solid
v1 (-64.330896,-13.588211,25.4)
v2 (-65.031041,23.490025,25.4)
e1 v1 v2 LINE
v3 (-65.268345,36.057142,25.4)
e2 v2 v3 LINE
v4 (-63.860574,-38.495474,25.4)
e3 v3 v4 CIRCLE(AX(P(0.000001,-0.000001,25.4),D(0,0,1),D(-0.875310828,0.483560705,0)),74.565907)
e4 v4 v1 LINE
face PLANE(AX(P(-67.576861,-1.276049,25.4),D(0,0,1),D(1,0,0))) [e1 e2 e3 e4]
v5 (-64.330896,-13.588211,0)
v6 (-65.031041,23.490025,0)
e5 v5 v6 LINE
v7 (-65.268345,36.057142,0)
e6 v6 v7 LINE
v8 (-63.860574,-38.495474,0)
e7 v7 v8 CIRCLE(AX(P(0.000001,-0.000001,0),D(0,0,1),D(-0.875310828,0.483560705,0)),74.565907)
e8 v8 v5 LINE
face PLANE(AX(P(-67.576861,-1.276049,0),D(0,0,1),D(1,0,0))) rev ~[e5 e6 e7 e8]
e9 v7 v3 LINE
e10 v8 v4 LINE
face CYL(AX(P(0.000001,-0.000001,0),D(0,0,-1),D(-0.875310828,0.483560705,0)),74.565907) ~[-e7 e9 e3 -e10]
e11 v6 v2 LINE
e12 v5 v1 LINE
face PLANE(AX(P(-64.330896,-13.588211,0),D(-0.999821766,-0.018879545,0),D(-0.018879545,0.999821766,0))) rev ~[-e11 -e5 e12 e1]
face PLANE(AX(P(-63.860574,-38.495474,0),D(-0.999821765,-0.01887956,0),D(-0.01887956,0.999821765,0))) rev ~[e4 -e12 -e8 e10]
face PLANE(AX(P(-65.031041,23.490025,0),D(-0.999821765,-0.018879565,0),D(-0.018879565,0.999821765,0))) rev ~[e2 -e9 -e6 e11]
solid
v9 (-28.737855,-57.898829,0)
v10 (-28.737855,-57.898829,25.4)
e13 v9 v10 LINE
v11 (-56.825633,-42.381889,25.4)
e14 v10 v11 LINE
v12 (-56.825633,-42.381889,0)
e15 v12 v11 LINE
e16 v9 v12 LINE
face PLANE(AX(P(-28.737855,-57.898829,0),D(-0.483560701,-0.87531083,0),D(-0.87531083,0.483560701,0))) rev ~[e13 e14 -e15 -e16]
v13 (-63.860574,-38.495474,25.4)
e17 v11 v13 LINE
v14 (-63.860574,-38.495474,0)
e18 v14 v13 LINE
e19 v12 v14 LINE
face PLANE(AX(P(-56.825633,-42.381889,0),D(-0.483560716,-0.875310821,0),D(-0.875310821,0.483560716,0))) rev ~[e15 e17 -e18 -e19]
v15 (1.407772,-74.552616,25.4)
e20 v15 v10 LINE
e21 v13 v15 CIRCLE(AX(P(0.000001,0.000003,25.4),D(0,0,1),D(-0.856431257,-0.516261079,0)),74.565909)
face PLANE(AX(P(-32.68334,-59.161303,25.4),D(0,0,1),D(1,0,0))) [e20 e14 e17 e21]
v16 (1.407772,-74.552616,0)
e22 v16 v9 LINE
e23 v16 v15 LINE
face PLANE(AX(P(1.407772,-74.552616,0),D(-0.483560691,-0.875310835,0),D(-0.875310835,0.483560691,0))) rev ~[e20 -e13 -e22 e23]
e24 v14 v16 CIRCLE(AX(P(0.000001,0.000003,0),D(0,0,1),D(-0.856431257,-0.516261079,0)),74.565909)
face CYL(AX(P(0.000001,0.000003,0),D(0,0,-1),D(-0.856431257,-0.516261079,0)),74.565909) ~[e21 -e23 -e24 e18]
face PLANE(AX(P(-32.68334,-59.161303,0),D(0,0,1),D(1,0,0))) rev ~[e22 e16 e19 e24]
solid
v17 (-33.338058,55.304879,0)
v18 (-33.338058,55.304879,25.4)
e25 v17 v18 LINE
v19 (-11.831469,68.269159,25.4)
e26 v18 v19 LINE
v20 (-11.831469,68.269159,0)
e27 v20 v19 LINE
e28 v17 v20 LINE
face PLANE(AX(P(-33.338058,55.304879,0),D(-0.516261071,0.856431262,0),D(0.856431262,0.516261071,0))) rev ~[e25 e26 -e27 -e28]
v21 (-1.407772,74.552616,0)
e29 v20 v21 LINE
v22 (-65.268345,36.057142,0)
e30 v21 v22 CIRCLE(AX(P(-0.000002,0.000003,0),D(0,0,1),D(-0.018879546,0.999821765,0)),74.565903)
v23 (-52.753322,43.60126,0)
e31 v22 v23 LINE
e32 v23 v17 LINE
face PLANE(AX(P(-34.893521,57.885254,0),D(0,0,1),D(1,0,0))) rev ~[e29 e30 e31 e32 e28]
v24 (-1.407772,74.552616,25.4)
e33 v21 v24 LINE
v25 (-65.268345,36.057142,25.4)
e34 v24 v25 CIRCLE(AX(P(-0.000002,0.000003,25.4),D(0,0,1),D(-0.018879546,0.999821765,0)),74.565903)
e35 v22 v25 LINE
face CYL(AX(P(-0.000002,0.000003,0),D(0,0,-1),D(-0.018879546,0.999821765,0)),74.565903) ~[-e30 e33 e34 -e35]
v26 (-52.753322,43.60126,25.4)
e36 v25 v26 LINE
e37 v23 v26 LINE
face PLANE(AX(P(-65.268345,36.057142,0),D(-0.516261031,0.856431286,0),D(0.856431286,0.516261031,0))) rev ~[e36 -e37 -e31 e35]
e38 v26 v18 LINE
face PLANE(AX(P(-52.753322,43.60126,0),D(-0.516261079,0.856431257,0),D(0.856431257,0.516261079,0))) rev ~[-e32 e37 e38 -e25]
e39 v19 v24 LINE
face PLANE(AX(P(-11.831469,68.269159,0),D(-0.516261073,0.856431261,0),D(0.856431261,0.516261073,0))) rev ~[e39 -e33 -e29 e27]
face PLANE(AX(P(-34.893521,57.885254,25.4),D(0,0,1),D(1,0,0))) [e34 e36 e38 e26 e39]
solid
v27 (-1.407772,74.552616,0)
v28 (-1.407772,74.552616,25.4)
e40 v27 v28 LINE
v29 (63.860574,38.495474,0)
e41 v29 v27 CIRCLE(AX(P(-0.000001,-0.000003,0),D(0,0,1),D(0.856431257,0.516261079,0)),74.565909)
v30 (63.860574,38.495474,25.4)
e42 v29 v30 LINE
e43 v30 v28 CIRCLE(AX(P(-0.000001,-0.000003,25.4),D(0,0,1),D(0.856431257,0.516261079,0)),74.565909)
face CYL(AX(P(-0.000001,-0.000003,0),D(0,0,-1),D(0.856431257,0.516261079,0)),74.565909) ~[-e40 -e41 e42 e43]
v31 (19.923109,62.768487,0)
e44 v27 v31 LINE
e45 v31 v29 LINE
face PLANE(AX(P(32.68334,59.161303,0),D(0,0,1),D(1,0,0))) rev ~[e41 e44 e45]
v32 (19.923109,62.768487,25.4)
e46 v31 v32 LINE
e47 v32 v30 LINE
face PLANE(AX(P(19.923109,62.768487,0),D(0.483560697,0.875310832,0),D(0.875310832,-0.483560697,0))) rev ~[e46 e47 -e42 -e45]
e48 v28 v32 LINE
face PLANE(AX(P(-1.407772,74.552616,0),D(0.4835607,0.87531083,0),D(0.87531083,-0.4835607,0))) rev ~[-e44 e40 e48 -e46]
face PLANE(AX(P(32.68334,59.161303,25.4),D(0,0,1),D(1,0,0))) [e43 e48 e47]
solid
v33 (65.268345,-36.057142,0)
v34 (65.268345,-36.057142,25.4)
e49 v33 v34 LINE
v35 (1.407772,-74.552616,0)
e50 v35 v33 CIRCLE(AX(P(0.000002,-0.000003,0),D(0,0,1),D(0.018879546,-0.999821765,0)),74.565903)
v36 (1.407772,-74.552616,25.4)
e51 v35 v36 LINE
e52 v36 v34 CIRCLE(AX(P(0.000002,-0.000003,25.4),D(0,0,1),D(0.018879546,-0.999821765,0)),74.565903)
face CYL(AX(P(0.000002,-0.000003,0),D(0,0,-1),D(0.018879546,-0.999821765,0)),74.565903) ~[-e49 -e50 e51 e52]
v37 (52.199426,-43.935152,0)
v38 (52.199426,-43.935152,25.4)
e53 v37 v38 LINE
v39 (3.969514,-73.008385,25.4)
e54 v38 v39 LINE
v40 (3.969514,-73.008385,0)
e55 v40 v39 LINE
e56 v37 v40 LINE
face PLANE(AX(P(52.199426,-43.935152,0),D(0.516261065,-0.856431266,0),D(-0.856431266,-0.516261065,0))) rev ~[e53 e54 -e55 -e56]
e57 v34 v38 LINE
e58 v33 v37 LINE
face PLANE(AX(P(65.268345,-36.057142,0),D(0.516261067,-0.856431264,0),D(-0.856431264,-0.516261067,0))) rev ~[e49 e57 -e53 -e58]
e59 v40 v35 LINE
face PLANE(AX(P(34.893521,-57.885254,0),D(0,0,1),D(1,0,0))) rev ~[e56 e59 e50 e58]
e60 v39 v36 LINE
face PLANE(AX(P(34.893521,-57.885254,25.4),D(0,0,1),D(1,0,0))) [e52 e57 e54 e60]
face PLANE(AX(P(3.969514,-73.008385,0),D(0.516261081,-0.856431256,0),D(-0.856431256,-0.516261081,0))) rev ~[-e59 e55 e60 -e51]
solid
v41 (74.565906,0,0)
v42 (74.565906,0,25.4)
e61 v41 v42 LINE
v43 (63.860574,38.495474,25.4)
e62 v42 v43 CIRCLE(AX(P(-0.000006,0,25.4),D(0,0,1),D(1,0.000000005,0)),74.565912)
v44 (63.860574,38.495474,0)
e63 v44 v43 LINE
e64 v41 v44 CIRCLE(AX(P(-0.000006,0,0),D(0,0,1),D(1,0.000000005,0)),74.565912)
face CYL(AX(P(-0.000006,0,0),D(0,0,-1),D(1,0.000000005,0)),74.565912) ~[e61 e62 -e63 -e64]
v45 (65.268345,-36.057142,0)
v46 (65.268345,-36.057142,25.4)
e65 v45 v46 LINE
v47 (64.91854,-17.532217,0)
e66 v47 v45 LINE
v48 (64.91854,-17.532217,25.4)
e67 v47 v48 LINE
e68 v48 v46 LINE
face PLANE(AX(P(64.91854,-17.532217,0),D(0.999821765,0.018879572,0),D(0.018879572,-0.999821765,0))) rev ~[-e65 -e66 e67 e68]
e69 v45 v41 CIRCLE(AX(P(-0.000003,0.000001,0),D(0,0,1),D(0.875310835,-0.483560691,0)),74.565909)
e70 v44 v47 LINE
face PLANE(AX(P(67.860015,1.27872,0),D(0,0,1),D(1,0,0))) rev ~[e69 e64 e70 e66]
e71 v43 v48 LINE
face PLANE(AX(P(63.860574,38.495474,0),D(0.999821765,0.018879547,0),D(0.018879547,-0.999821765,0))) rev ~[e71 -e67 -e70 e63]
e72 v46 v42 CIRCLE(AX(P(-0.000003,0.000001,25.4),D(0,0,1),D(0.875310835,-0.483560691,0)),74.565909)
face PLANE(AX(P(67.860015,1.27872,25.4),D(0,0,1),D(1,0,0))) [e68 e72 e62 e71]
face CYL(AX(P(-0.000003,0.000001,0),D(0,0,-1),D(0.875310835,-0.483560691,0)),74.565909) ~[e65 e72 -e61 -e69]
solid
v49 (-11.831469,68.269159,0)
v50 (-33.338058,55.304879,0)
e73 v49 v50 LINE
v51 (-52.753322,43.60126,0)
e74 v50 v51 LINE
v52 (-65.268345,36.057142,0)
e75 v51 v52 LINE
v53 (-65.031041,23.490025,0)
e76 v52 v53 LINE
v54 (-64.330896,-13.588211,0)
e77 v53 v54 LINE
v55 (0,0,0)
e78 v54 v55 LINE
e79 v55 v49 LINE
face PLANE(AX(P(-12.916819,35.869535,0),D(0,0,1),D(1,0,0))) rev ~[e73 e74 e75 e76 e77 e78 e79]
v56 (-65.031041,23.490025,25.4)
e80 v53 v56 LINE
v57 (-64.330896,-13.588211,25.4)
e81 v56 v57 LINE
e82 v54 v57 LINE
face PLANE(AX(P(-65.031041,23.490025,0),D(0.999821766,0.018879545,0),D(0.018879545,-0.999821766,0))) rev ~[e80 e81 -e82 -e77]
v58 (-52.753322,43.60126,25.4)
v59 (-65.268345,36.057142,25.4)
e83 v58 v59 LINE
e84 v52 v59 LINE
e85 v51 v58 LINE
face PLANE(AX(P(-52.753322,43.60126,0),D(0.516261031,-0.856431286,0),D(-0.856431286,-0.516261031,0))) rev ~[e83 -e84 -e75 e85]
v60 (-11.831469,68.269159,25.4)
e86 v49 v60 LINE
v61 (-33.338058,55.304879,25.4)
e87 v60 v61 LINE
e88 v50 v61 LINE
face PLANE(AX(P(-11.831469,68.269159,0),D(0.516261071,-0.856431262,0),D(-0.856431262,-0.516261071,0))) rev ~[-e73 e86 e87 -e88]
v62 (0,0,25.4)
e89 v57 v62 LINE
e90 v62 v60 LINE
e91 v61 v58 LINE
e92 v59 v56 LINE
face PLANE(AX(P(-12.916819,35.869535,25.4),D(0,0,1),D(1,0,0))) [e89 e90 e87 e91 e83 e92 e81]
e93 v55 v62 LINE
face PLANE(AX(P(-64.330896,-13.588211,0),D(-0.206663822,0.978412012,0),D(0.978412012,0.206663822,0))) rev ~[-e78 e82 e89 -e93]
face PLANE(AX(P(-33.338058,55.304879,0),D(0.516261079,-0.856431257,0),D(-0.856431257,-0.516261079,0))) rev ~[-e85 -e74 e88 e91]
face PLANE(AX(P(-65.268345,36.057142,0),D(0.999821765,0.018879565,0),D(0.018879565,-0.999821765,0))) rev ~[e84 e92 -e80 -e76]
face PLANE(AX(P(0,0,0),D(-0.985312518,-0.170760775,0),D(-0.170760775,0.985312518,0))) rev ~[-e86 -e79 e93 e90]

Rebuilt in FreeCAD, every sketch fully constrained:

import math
import FreeCAD as App
import Part
import Sketcher

V = App.Vector
Q = App.Units.Quantity


def add_polygon(sketch, points):
    """Adds a closed chain of lines whose ends are joined by coincident constraints."""
    first, n = sketch.GeometryCount, len(points)
    for a, b in zip(points, points[1:] + points[:1]):
        sketch.addGeometry(Part.LineSegment(App.Vector(*a, 0), App.Vector(*b, 0)), False)
    for i in range(n):
        sketch.addConstraint(Sketcher.Constraint("Coincident", first + i, 2, first + (i + 1) % n, 1))

doc = App.newDocument("Part")
params = doc.addObject("Spreadsheet::Sheet", "Params")
for row, (alias, value) in enumerate([
    ("pad1_length", "1 in"),
    ("pad2_length", "1 in"),
], start=1):
    params.set(f"A{row}", alias)
    params.set(f"B{row}", "=" + value)
    params.setAlias(f"B{row}", alias)

body = doc.addObject("PartDesign::Body", "Body")
body.AllowCompound = True

sketch1 = body.newObject("Sketcher::SketchObject", "Sketch")
sketch1.AttachmentSupport = (doc.getObject("XY_Plane"), [""])
sketch1.MapMode = "FlatFace"
sketch1.addGeometry([
    Part.ArcOfCircle(Part.Circle(V(-0.000003, 0.000001, 0), V(0, 0, 1), 74.565909), math.radians(-28.918216), math.radians(-0.000001)),
    Part.ArcOfCircle(Part.Circle(V(-0.000006, 0, 0), V(0, 0, 1), 74.565912), math.radians(0), math.radians(31.081781)),
    Part.LineSegment(V(63.860574, 38.495474, 0), V(64.91854, -17.532217, 0)),
    Part.LineSegment(V(64.91854, -17.532217, 0), V(65.268345, -36.057142, 0)),
    Part.LineSegment(V(19.923109, 62.768487, 0), V(63.860574, 38.495474, 0)),
    Part.ArcOfCircle(Part.Circle(V(-0.000001, -0.000003, 0), V(0, 0, 1), 74.565909), math.radians(31.081785), math.radians(91.081783)),
    Part.LineSegment(V(-1.407772, 74.552616, 0), V(19.923109, 62.768487, 0)),
    Part.LineSegment(V(-11.831469, 68.269159, 0), V(-1.407772, 74.552616, 0)),
    Part.ArcOfCircle(Part.Circle(V(-0.000002, 0.000003, 0), V(0, 0, 1), 74.565903), math.radians(91.081783), math.radians(151.081785)),
    Part.LineSegment(V(-65.268345, 36.057142, 0), V(-52.753322, 43.60126, 0)),
    Part.LineSegment(V(-52.753322, 43.60126, 0), V(-33.338058, 55.304879, 0)),
    Part.LineSegment(V(-33.338058, 55.304879, 0), V(-11.831469, 68.269159, 0)),
    Part.ArcOfCircle(Part.Circle(V(0.000001, 0.000003, 0), V(0, 0, 1), 74.565909), math.radians(-148.918215), math.radians(-88.918217)),
    Part.LineSegment(V(1.407772, -74.552616, 0), V(-28.737855, -57.898829, 0)),
    Part.LineSegment(V(-28.737855, -57.898829, 0), V(-56.825633, -42.381889, 0)),
    Part.LineSegment(V(-56.825633, -42.381889, 0), V(-63.860574, -38.495474, 0)),
    Part.ArcOfCircle(Part.Circle(V(0.000002, -0.000003, 0), V(0, 0, 1), 74.565903), math.radians(-88.918217), math.radians(-28.918215)),
    Part.LineSegment(V(65.268345, -36.057142, 0), V(52.199426, -43.935152, 0)),
    Part.LineSegment(V(52.199426, -43.935152, 0), V(3.969514, -73.008385, 0)),
    Part.LineSegment(V(3.969514, -73.008385, 0), V(1.407772, -74.552616, 0)),
    Part.LineSegment(V(-65.031041, 23.490025, 0), V(-65.268345, 36.057142, 0)),
    Part.ArcOfCircle(Part.Circle(V(0.000001, -0.000001, 0), V(0, 0, 1), 74.565907), math.radians(151.081783), math.radians(211.081783)),
    Part.LineSegment(V(-63.860574, -38.495474, 0), V(-64.330896, -13.588211, 0)),
    Part.LineSegment(V(-64.330896, -13.588211, 0), V(-65.031041, 23.490025, 0)),
], False)
sketch1.addConstraint([
    Sketcher.Constraint("Coincident", 0, 2, 1, 1),
    Sketcher.Constraint("Coincident", 1, 2, 2, 1),
    Sketcher.Constraint("Coincident", 2, 2, 3, 1),
    Sketcher.Constraint("Coincident", 3, 2, 0, 1),
    Sketcher.Constraint("Coincident", 4, 2, 5, 1),
    Sketcher.Constraint("Coincident", 5, 2, 6, 1),
    Sketcher.Constraint("Coincident", 6, 2, 4, 1),
    Sketcher.Constraint("Coincident", 7, 2, 8, 1),
    Sketcher.Constraint("Coincident", 8, 2, 9, 1),
    Sketcher.Constraint("Coincident", 9, 2, 10, 1),
    Sketcher.Constraint("Coincident", 10, 2, 11, 1),
    Sketcher.Constraint("Coincident", 11, 2, 7, 1),
    Sketcher.Constraint("Coincident", 12, 2, 13, 1),
    Sketcher.Constraint("Coincident", 13, 2, 14, 1),
    Sketcher.Constraint("Coincident", 14, 2, 15, 1),
    Sketcher.Constraint("Coincident", 15, 2, 12, 1),
    Sketcher.Constraint("Coincident", 16, 2, 17, 1),
    Sketcher.Constraint("Coincident", 17, 2, 18, 1),
    Sketcher.Constraint("Coincident", 18, 2, 19, 1),
    Sketcher.Constraint("Coincident", 19, 2, 16, 1),
    Sketcher.Constraint("Coincident", 20, 2, 21, 1),
    Sketcher.Constraint("Coincident", 21, 2, 22, 1),
    Sketcher.Constraint("Coincident", 22, 2, 23, 1),
    Sketcher.Constraint("Coincident", 23, 2, 20, 1),
    Sketcher.Constraint("Coincident", 0, 3, -1, 1),
    Sketcher.Constraint("Coincident", 1, 3, -1, 1),
    Sketcher.Constraint("Coincident", 5, 3, -1, 1),
    Sketcher.Constraint("Coincident", 8, 3, -1, 1),
    Sketcher.Constraint("Coincident", 12, 3, -1, 1),
    Sketcher.Constraint("Coincident", 16, 3, -1, 1),
    Sketcher.Constraint("Coincident", 21, 3, -1, 1),
    Sketcher.Constraint("Coincident", 4, 2, 1, 2),
    Sketcher.Constraint("Coincident", 7, 2, 5, 2),
    Sketcher.Constraint("Coincident", 16, 2, 3, 2),
    Sketcher.Constraint("Coincident", 19, 2, 12, 2),
    Sketcher.Constraint("Coincident", 20, 2, 8, 2),
    Sketcher.Constraint("PointOnObject", 0, 2, -1),
    Sketcher.Constraint("Radius", 0, 74.565909),
    Sketcher.Constraint("DistanceY", 12, 3, 6, 2, Q("2.4712002 in")),
    Sketcher.Constraint("DistanceY", 9, 2, 11, 2, 24.667899),
    Sketcher.Constraint("Distance", 2, 56.037679),
    Sketcher.Constraint("Distance", 9, 14.612991),
    Sketcher.Constraint("Distance", 10, 22.669962),
    Sketcher.Constraint("Distance", 11, 25.111868),
    Sketcher.Constraint("Distance", 13, 34.439911),
    Sketcher.Constraint("Distance", 14, 32.088919),
    Sketcher.Constraint("Distance", 17, 15.259741),
    Sketcher.Constraint("DistanceX", -1, 1, 2, 2, 64.91854),
    Sketcher.Constraint("DistanceX", 5, 2, -1, 1, 1.407772),
    Sketcher.Constraint("DistanceX", -1, 1, 6, 2, 19.923109),
    Sketcher.Constraint("DistanceY", -1, 1, 8, 2, 36.057142),
    Sketcher.Constraint("DistanceX", 9, 2, -1, 1, 52.753322),
    Sketcher.Constraint("DistanceY", -1, 1, 10, 2, 55.304879),
    Sketcher.Constraint("DistanceX", -1, 1, 12, 2, 1.407772),
    Sketcher.Constraint("DistanceY", 13, 2, -1, 1, 57.898829),
    Sketcher.Constraint("DistanceY", 14, 2, -1, 1, 42.381889),
    Sketcher.Constraint("DistanceY", 16, 2, -1, 1, 36.057142),
    Sketcher.Constraint("DistanceY", 22, 2, -1, 1, 13.588211),
    Sketcher.Constraint("DistanceX", 23, 2, -1, 1, 65.031041),
    Sketcher.Constraint("DistanceX", 1, 2, 0, 2, 10.705332),
    Sketcher.Constraint("DistanceX", 15, 2, 14, 2, 7.034941),
    Sketcher.Constraint("DistanceX", 17, 2, 16, 2, 13.068919),
    Sketcher.Constraint("DistanceY", 12, 2, 18, 2, 1.544231),
    Sketcher.Constraint("DistanceX", 13, 2, 18, 2, 32.707369),
    Sketcher.Constraint("DistanceX", 21, 2, 14, 2, 7.034941),
    Sketcher.Constraint("DistanceX", 22, 2, 15, 2, 0.470322),
    Sketcher.Constraint("Distance", 20, 12.569357),
])
pad1 = body.newObject("PartDesign::Pad", "Pad")
pad1.Profile = sketch1
pad1.setExpression("Length", "Params.pad1_length")
body2 = doc.addObject("PartDesign::Body", "Body001")

sketch2 = body2.newObject("Sketcher::SketchObject", "Sketch001")
sketch2.AttachmentSupport = (doc.getObject("XY_Plane001"), [""])
sketch2.MapMode = "FlatFace"
add_polygon(sketch2, [(0, 0), (-11.831469, 68.269159), (-33.338058, 55.304879), (-52.753322, 43.60126), (-65.268345, 36.057142), (-65.031041, 23.490025), (-64.330896, -13.588211)])
sketch2.addConstraint([
    Sketcher.Constraint("Coincident", 6, 2, -1, 1),
    Sketcher.Constraint("DistanceY", 2, 2, 0, 2, 24.667899),
    Sketcher.Constraint("Distance", 1, 25.111868),
    Sketcher.Constraint("Distance", 2, 22.669962),
    Sketcher.Constraint("Distance", 3, 14.612991),
    Sketcher.Constraint("DistanceX", 0, 2, -1, 1, 11.831469),
    Sketcher.Constraint("DistanceY", -1, 1, 0, 2, 68.269159),
    Sketcher.Constraint("DistanceY", -1, 1, 1, 2, 55.304879),
    Sketcher.Constraint("DistanceX", 4, 2, -1, 1, 65.031041),
    Sketcher.Constraint("DistanceY", 5, 2, -1, 1, 13.588211),
    Sketcher.Constraint("DistanceY", 3, 2, 2, 2, 7.544118),
    Sketcher.Constraint("DistanceX", 3, 2, 5, 2, 0.937449),
    Sketcher.Constraint("Distance", 4, 12.569357),
])
pad2 = body2.newObject("PartDesign::Pad", "Pad001")
pad2.Profile = sketch2
pad2.setExpression("Length", "Params.pad2_length")

doc.recompute()
